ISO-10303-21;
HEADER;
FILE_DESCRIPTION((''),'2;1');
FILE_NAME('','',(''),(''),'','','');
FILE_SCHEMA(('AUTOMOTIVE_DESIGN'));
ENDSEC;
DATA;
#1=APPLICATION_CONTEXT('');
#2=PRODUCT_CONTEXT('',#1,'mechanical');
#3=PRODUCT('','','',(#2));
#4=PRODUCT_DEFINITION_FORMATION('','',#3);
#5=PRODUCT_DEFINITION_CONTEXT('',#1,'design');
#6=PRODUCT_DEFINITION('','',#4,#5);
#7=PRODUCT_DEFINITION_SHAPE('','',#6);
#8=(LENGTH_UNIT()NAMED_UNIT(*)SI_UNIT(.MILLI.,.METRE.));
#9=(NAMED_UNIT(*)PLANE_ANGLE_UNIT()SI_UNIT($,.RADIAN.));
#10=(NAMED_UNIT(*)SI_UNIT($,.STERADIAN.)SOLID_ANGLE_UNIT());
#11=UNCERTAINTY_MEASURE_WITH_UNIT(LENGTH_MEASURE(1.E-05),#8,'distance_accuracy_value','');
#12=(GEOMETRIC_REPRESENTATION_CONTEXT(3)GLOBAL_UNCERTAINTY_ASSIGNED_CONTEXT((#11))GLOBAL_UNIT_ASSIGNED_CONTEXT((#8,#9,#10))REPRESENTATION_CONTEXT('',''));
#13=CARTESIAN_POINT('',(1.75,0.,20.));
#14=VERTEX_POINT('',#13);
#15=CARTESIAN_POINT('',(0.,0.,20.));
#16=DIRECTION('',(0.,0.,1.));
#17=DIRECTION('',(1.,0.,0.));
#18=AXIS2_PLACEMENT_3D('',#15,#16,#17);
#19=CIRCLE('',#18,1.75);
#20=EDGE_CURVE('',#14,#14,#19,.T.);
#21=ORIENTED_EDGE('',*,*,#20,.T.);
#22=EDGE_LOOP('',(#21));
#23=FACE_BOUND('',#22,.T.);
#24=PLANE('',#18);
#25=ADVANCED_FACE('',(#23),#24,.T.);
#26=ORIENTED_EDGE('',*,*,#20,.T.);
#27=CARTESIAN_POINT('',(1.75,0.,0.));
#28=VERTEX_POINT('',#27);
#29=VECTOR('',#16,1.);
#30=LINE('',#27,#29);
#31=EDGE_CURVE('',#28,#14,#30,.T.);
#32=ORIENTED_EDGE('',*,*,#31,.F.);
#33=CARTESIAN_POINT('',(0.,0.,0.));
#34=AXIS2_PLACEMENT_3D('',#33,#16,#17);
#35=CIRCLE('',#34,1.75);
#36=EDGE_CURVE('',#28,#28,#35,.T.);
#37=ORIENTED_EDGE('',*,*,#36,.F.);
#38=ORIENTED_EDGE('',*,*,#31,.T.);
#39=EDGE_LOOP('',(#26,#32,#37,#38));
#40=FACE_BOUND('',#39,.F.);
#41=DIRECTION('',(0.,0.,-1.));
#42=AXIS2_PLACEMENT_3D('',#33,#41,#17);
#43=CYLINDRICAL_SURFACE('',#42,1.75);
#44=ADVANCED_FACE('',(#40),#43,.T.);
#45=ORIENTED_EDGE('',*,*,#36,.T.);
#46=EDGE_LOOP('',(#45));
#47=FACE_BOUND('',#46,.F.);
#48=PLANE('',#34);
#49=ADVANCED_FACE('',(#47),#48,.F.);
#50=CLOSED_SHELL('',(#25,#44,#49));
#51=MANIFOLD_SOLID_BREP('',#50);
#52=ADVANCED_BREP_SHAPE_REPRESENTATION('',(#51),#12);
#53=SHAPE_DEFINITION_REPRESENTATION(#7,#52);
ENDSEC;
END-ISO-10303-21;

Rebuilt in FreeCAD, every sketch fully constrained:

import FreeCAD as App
import Part
import Sketcher

doc = App.newDocument("Part")
body = doc.addObject("PartDesign::Body", "Body")

sketch1 = body.newObject("Sketcher::SketchObject", "Sketch")
sketch1.AttachmentSupport = (doc.getObject("XY_Plane"), [""])
sketch1.MapMode = "FlatFace"
sketch1.addGeometry(Part.Circle(App.Vector(0, 0, 0), App.Vector(0, 0, 1), 1.8), False)
sketch1.addConstraint([
    Sketcher.Constraint("Coincident", 0, 3, -1, 1),
    Sketcher.Constraint("Diameter", 0, 3.5),
])
pad1 = body.newObject("PartDesign::Pad", "Pad")
pad1.Profile = sketch1
pad1.Length = 20

doc.recompute()
